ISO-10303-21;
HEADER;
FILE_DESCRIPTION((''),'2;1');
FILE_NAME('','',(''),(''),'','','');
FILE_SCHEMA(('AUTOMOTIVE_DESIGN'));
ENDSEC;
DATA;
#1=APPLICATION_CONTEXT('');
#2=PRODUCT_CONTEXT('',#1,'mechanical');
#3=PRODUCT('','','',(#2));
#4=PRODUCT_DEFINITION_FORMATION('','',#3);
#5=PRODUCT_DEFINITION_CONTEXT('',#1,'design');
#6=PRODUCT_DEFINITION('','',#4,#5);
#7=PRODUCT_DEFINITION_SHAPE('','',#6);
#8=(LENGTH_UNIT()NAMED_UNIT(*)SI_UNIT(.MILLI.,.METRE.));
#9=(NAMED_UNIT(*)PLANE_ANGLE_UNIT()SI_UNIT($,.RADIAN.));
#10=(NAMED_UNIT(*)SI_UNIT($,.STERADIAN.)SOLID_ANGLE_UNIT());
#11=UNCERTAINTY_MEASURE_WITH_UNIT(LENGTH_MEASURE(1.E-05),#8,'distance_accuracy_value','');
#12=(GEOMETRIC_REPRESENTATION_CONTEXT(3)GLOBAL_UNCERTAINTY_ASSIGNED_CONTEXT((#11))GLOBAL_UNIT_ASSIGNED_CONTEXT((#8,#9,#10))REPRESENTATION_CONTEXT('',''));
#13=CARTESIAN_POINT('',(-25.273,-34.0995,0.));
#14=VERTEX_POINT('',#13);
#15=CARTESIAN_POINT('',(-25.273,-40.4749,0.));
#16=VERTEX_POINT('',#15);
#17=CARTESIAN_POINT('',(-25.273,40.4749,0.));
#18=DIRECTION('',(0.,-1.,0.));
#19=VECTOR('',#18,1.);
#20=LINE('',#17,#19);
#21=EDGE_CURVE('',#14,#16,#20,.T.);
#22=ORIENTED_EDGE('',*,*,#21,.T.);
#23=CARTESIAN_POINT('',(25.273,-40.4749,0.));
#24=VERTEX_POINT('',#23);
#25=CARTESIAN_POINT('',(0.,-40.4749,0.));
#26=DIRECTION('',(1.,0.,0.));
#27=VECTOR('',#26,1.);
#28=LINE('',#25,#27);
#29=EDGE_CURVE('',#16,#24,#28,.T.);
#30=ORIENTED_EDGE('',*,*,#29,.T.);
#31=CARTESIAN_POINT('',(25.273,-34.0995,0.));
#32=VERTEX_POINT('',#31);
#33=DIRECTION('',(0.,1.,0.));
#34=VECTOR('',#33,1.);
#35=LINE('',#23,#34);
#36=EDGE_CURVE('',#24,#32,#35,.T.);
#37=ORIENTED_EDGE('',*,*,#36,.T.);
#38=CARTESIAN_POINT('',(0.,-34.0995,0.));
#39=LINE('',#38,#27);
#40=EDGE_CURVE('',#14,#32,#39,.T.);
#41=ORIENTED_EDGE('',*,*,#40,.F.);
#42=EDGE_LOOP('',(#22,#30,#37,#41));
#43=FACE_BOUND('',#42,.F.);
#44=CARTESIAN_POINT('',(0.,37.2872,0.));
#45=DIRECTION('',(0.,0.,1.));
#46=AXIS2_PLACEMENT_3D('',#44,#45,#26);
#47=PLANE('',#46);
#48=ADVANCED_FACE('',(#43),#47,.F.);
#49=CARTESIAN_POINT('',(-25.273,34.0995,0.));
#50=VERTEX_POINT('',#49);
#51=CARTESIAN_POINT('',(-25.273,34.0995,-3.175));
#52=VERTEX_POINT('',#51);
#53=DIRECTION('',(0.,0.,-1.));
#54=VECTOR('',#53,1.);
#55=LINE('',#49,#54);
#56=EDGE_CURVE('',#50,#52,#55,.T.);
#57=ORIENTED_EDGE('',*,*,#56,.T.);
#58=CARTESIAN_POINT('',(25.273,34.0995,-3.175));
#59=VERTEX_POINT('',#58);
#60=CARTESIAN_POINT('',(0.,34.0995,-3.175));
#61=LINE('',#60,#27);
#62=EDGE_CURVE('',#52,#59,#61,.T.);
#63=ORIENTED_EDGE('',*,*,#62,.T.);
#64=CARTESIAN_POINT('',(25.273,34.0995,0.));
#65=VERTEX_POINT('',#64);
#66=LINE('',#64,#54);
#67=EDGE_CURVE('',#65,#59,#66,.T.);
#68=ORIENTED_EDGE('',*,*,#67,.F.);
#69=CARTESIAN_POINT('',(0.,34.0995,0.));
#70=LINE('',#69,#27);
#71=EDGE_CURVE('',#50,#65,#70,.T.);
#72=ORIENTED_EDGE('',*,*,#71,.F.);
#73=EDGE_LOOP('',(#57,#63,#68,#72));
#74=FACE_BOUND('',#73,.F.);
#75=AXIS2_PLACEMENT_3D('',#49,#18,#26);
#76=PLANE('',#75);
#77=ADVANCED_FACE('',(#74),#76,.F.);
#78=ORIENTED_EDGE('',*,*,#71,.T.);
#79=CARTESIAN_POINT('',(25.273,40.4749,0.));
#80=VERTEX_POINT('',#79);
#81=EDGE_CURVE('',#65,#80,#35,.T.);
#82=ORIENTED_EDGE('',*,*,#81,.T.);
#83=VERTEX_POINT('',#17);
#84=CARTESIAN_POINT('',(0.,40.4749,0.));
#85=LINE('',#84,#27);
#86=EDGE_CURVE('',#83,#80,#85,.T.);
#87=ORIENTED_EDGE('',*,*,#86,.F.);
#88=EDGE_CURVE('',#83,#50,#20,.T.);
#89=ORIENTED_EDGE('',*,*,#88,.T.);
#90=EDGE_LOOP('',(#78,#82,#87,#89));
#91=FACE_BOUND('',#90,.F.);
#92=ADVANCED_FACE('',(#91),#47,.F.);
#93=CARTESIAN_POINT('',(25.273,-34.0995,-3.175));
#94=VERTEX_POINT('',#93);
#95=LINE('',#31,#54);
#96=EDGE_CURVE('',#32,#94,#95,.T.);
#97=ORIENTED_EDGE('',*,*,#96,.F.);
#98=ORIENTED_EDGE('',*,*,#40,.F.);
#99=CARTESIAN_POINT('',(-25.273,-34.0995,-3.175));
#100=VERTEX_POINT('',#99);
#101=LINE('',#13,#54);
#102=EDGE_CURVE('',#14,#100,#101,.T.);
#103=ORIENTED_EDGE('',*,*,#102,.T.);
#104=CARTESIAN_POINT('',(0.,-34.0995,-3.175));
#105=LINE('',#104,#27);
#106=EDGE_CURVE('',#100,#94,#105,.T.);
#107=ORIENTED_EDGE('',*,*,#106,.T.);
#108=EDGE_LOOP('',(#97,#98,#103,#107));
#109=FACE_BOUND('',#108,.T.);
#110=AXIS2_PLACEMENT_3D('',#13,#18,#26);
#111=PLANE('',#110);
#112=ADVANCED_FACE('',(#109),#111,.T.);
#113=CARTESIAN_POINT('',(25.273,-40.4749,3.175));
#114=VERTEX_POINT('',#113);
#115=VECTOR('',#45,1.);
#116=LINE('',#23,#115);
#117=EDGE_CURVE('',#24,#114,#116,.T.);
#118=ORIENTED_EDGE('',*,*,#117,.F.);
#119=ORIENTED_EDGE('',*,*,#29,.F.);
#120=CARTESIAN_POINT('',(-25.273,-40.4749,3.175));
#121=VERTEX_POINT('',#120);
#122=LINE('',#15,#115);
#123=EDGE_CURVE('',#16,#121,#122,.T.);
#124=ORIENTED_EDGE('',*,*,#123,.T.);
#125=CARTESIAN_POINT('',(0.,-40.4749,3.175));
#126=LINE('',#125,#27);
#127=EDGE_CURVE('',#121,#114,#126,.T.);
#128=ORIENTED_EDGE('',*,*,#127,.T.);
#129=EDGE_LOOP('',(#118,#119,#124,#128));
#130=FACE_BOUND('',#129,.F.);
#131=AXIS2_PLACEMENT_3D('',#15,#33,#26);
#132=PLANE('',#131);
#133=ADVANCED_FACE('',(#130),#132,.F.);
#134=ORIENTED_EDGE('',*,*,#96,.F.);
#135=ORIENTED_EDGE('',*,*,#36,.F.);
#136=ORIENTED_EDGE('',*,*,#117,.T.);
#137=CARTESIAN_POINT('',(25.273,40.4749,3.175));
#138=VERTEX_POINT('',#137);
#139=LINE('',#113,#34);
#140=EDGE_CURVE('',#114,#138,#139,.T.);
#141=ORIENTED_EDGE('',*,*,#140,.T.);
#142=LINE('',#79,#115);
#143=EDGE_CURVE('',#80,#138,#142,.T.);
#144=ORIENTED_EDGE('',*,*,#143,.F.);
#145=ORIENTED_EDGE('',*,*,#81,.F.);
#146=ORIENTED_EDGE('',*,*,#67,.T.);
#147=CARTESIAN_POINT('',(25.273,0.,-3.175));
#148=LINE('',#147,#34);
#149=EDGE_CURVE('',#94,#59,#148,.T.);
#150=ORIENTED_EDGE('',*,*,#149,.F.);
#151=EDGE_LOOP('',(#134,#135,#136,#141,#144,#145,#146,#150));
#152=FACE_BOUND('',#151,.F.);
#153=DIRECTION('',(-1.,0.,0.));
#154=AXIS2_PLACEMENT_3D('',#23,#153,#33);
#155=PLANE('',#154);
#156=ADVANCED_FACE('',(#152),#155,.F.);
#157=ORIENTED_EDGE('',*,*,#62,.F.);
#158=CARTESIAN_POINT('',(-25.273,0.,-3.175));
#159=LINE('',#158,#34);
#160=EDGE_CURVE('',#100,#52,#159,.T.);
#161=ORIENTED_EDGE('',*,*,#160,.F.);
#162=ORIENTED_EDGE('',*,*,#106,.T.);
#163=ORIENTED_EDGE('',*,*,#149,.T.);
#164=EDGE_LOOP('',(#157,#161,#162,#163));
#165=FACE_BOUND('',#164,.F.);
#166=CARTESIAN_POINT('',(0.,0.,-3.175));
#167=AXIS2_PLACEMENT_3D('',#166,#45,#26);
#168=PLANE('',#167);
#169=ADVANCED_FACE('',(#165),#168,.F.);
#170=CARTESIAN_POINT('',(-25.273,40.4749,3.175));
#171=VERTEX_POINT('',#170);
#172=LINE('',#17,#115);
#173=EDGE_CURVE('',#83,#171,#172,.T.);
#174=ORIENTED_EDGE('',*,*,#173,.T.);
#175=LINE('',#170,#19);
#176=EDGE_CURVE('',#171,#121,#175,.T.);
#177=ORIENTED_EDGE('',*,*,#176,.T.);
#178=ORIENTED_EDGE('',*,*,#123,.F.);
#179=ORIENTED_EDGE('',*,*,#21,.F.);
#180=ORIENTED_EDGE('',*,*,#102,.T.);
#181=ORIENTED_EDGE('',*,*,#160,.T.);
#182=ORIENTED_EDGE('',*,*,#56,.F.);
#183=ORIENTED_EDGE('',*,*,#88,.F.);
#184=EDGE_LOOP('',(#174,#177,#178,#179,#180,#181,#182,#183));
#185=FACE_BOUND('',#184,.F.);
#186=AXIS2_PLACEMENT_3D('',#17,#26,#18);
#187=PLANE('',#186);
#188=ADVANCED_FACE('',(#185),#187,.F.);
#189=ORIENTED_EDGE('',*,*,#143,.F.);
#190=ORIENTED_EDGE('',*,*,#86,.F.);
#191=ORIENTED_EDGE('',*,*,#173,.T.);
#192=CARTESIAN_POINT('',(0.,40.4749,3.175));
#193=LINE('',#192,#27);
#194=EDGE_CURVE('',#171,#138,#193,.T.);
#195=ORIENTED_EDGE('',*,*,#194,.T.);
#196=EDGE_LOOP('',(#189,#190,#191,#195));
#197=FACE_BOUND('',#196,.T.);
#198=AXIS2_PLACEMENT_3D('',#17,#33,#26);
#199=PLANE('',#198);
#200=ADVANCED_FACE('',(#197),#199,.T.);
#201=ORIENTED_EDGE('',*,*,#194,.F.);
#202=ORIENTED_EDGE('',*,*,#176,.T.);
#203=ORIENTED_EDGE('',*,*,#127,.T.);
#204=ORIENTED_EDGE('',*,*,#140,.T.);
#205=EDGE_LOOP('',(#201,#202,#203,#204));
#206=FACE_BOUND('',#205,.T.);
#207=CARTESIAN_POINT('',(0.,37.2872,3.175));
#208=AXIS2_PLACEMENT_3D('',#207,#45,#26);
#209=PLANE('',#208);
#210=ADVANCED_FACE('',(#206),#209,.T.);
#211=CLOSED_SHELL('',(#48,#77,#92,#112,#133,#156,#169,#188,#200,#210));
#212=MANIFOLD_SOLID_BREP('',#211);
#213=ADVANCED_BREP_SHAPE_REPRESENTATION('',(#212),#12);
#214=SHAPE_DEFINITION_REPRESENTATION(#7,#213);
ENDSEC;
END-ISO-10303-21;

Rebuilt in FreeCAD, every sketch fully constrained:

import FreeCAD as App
import Part
import Sketcher
Q = App.Units.Quantity


def add_polygon(sketch, points):
    """Adds a closed chain of lines whose ends are joined by coincident constraints."""
    first, n = sketch.GeometryCount, len(points)
    for a, b in zip(points, points[1:] + points[:1]):
        sketch.addGeometry(Part.LineSegment(App.Vector(*a, 0), App.Vector(*b, 0)), False)
    for i in range(n):
        sketch.addConstraint(Sketcher.Constraint("Coincident", first + i, 2, first + (i + 1) % n, 1))

doc = App.newDocument("Part")
body = doc.addObject("PartDesign::Body", "Body")

# Sketch on XY plane
sketch1 = body.newObject("Sketcher::SketchObject", "Sketch")
sketch1.AttachmentSupport = (doc.getObject("XY_Plane"), [""])
sketch1.MapMode = "FlatFace"
add_polygon(sketch1, [(-25, 40), (-25, -40), (25, -40), (25, 40)])  # lines 0-3
sketch1.addConstraint([
    Sketcher.Constraint("Vertical", 0),
    Sketcher.Constraint("Horizontal", 1),
    Sketcher.Constraint("Vertical", 2),
    Sketcher.Constraint("Horizontal", 3),
    Sketcher.Constraint("Symmetric", 0, 2, 2, 2, -1, 1),
    Sketcher.Constraint("DistanceX", 1, 1, 1, 2, Q("1.99 in")),
    Sketcher.Constraint("DistanceY", 0, 2, 0, 1, Q("3.187 in")),
])
pad1 = body.newObject("PartDesign::Pad", "Pad")
pad1.Profile = sketch1
pad1.Length = Q("0.125 in")

# Sketch on XY plane
sketch2 = body.newObject("Sketcher::SketchObject", "Sketch001")
sketch2.AttachmentSupport = (doc.getObject("XY_Plane"), [""])
sketch2.MapMode = "FlatFace"
add_polygon(sketch2, [(-25, 34), (-25, -34), (25, -34), (25, 34)])  # lines 0-3
sketch2.addConstraint([
    Sketcher.Constraint("Vertical", 0),
    Sketcher.Constraint("Horizontal", 1),
    Sketcher.Constraint("Vertical", 2),
    Sketcher.Constraint("Horizontal", 3),
    Sketcher.Constraint("Symmetric", 0, 2, 2, 2, -1, 1),
    Sketcher.Constraint("DistanceX", 1, 1, 1, 2, Q("1.99 in")),
    Sketcher.Constraint("DistanceY", 0, 2, 0, 1, Q("2.685 in")),
])
pad2 = body.newObject("PartDesign::Pad", "Pad001")
pad2.Profile = sketch2
pad2.Length = Q("0.125 in")
pad2.Reversed = True

doc.recompute()
